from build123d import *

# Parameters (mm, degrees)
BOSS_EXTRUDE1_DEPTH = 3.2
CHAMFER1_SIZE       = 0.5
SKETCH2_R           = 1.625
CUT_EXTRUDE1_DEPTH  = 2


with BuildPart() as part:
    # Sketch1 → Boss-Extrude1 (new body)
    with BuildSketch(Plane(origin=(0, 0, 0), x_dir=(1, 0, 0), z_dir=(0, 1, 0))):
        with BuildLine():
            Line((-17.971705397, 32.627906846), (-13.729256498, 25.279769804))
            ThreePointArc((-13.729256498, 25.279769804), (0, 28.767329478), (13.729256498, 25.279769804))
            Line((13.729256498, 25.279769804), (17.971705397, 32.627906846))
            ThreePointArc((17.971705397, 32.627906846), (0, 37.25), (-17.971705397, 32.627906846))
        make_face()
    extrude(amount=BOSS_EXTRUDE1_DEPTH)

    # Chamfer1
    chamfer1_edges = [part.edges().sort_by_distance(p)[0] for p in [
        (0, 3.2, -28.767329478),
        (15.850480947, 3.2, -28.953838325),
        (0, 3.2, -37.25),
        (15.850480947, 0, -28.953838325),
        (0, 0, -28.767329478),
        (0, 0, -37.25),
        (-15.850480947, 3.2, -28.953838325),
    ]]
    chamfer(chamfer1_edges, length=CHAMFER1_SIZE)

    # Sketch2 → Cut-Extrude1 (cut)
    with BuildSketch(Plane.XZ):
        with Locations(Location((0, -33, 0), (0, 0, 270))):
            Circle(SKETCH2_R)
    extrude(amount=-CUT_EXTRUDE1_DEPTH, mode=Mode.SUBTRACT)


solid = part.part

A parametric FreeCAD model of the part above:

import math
import FreeCAD as App
import Part
import Sketcher
Q = App.Units.Quantity


def edges_at(feature, points):
    """Names of the edges that pass closest to the given points."""
    edges = feature.Shape.Edges
    near = lambda p: min(range(len(edges)), key=lambda i: edges[i].distToShape(Part.Vertex(*p))[0])
    return sorted({f"Edge{near(p) + 1}" for p in points})

doc = App.newDocument("Part")
body = doc.addObject("PartDesign::Body", "Body")

sketch1 = body.newObject("Sketcher::SketchObject", "Sketch")
sketch1.AttachmentSupport = (doc.getObject("XZ_Plane"), [""])
sketch1.MapMode = "FlatFace"
sketch1.addGeometry(Part.LineSegment(App.Vector(-18, -33, 0), App.Vector(-14, -25, 0)), False)
sketch1.addGeometry(Part.ArcOfCircle(Part.Circle(App.Vector(0, 0, 0), App.Vector(0, 0, 1), 29), math.radians(-119), math.radians(-61)), False)
sketch1.addGeometry(Part.LineSegment(App.Vector(14, -25, 0), App.Vector(18, -33, 0)), False)
sketch1.addGeometry(Part.ArcOfCircle(Part.Circle(App.Vector(0, 0, 0), App.Vector(0, 0, 1), 37), math.radians(-119), math.radians(-61)), False)
sketch1.addConstraint(Sketcher.Constraint("Coincident", 0, 2, 1, 1))
sketch1.addConstraint(Sketcher.Constraint("Coincident", 1, 2, 2, 1))
sketch1.addConstraint(Sketcher.Constraint("Coincident", 2, 2, 3, 2))
sketch1.addConstraint(Sketcher.Constraint("Coincident", 3, 1, 0, 1))
sketch1.addConstraint(Sketcher.Constraint("Coincident", 1, 3, -1, 1))
sketch1.addConstraint(Sketcher.Constraint("Coincident", 3, 3, -1, 1))
sketch1.addConstraint(Sketcher.Constraint("Horizontal", 0, 2, 1, 2))
sketch1.addConstraint(Sketcher.Constraint("Horizontal", 2, 2, 3, 1))
sketch1.addConstraint(Sketcher.Constraint("Angle", 0, Q("60 deg")))
sketch1.addConstraint(Sketcher.Constraint("Radius", 3, 37.25))
sketch1.addConstraint(Sketcher.Constraint("Radius", 1, 28.767329))
sketch1.addConstraint(Sketcher.Constraint("DistanceY", 0, 2, -1, 1, 25.27977))
pad1 = body.newObject("PartDesign::Pad", "Pad")
pad1.Profile = sketch1
pad1.Length = 3.2
pad1.Reversed = True
doc.recompute()

chamfer = body.newObject("PartDesign::Chamfer", "Chamfer")
chamfer.Base = (pad1, edges_at(pad1, [
    (0, 3.2, -28.767),
    (15.85, 3.2, -28.954),
    (0, 3.2, -37.25),
    (15.85, 0, -28.954),
    (0, 0, -28.767),
    (0, 0, -37.25),
    (-15.85, 3.2, -28.954),
]))
chamfer.Size = 0.5

sketch2 = body.newObject("Sketcher::SketchObject", "Sketch001")
sketch2.AttachmentSupport = (doc.getObject("XZ_Plane"), [""])
sketch2.MapMode = "FlatFace"
sketch2.addGeometry(Part.Circle(App.Vector(0, -33, 0), App.Vector(0, 0, 1), 1.6), False)
sketch2.addConstraint(Sketcher.Constraint("PointOnObject", 0, 3, -2))
sketch2.addConstraint(Sketcher.Constraint("Diameter", 0, 3.25))
sketch2.addConstraint(Sketcher.Constraint("DistanceY", 0, 3, -1, 1, 33.0))
pocket1 = body.newObject("PartDesign::Pocket", "Pocket")
pocket1.Profile = sketch2
pocket1.Length = 2

doc.recompute()
